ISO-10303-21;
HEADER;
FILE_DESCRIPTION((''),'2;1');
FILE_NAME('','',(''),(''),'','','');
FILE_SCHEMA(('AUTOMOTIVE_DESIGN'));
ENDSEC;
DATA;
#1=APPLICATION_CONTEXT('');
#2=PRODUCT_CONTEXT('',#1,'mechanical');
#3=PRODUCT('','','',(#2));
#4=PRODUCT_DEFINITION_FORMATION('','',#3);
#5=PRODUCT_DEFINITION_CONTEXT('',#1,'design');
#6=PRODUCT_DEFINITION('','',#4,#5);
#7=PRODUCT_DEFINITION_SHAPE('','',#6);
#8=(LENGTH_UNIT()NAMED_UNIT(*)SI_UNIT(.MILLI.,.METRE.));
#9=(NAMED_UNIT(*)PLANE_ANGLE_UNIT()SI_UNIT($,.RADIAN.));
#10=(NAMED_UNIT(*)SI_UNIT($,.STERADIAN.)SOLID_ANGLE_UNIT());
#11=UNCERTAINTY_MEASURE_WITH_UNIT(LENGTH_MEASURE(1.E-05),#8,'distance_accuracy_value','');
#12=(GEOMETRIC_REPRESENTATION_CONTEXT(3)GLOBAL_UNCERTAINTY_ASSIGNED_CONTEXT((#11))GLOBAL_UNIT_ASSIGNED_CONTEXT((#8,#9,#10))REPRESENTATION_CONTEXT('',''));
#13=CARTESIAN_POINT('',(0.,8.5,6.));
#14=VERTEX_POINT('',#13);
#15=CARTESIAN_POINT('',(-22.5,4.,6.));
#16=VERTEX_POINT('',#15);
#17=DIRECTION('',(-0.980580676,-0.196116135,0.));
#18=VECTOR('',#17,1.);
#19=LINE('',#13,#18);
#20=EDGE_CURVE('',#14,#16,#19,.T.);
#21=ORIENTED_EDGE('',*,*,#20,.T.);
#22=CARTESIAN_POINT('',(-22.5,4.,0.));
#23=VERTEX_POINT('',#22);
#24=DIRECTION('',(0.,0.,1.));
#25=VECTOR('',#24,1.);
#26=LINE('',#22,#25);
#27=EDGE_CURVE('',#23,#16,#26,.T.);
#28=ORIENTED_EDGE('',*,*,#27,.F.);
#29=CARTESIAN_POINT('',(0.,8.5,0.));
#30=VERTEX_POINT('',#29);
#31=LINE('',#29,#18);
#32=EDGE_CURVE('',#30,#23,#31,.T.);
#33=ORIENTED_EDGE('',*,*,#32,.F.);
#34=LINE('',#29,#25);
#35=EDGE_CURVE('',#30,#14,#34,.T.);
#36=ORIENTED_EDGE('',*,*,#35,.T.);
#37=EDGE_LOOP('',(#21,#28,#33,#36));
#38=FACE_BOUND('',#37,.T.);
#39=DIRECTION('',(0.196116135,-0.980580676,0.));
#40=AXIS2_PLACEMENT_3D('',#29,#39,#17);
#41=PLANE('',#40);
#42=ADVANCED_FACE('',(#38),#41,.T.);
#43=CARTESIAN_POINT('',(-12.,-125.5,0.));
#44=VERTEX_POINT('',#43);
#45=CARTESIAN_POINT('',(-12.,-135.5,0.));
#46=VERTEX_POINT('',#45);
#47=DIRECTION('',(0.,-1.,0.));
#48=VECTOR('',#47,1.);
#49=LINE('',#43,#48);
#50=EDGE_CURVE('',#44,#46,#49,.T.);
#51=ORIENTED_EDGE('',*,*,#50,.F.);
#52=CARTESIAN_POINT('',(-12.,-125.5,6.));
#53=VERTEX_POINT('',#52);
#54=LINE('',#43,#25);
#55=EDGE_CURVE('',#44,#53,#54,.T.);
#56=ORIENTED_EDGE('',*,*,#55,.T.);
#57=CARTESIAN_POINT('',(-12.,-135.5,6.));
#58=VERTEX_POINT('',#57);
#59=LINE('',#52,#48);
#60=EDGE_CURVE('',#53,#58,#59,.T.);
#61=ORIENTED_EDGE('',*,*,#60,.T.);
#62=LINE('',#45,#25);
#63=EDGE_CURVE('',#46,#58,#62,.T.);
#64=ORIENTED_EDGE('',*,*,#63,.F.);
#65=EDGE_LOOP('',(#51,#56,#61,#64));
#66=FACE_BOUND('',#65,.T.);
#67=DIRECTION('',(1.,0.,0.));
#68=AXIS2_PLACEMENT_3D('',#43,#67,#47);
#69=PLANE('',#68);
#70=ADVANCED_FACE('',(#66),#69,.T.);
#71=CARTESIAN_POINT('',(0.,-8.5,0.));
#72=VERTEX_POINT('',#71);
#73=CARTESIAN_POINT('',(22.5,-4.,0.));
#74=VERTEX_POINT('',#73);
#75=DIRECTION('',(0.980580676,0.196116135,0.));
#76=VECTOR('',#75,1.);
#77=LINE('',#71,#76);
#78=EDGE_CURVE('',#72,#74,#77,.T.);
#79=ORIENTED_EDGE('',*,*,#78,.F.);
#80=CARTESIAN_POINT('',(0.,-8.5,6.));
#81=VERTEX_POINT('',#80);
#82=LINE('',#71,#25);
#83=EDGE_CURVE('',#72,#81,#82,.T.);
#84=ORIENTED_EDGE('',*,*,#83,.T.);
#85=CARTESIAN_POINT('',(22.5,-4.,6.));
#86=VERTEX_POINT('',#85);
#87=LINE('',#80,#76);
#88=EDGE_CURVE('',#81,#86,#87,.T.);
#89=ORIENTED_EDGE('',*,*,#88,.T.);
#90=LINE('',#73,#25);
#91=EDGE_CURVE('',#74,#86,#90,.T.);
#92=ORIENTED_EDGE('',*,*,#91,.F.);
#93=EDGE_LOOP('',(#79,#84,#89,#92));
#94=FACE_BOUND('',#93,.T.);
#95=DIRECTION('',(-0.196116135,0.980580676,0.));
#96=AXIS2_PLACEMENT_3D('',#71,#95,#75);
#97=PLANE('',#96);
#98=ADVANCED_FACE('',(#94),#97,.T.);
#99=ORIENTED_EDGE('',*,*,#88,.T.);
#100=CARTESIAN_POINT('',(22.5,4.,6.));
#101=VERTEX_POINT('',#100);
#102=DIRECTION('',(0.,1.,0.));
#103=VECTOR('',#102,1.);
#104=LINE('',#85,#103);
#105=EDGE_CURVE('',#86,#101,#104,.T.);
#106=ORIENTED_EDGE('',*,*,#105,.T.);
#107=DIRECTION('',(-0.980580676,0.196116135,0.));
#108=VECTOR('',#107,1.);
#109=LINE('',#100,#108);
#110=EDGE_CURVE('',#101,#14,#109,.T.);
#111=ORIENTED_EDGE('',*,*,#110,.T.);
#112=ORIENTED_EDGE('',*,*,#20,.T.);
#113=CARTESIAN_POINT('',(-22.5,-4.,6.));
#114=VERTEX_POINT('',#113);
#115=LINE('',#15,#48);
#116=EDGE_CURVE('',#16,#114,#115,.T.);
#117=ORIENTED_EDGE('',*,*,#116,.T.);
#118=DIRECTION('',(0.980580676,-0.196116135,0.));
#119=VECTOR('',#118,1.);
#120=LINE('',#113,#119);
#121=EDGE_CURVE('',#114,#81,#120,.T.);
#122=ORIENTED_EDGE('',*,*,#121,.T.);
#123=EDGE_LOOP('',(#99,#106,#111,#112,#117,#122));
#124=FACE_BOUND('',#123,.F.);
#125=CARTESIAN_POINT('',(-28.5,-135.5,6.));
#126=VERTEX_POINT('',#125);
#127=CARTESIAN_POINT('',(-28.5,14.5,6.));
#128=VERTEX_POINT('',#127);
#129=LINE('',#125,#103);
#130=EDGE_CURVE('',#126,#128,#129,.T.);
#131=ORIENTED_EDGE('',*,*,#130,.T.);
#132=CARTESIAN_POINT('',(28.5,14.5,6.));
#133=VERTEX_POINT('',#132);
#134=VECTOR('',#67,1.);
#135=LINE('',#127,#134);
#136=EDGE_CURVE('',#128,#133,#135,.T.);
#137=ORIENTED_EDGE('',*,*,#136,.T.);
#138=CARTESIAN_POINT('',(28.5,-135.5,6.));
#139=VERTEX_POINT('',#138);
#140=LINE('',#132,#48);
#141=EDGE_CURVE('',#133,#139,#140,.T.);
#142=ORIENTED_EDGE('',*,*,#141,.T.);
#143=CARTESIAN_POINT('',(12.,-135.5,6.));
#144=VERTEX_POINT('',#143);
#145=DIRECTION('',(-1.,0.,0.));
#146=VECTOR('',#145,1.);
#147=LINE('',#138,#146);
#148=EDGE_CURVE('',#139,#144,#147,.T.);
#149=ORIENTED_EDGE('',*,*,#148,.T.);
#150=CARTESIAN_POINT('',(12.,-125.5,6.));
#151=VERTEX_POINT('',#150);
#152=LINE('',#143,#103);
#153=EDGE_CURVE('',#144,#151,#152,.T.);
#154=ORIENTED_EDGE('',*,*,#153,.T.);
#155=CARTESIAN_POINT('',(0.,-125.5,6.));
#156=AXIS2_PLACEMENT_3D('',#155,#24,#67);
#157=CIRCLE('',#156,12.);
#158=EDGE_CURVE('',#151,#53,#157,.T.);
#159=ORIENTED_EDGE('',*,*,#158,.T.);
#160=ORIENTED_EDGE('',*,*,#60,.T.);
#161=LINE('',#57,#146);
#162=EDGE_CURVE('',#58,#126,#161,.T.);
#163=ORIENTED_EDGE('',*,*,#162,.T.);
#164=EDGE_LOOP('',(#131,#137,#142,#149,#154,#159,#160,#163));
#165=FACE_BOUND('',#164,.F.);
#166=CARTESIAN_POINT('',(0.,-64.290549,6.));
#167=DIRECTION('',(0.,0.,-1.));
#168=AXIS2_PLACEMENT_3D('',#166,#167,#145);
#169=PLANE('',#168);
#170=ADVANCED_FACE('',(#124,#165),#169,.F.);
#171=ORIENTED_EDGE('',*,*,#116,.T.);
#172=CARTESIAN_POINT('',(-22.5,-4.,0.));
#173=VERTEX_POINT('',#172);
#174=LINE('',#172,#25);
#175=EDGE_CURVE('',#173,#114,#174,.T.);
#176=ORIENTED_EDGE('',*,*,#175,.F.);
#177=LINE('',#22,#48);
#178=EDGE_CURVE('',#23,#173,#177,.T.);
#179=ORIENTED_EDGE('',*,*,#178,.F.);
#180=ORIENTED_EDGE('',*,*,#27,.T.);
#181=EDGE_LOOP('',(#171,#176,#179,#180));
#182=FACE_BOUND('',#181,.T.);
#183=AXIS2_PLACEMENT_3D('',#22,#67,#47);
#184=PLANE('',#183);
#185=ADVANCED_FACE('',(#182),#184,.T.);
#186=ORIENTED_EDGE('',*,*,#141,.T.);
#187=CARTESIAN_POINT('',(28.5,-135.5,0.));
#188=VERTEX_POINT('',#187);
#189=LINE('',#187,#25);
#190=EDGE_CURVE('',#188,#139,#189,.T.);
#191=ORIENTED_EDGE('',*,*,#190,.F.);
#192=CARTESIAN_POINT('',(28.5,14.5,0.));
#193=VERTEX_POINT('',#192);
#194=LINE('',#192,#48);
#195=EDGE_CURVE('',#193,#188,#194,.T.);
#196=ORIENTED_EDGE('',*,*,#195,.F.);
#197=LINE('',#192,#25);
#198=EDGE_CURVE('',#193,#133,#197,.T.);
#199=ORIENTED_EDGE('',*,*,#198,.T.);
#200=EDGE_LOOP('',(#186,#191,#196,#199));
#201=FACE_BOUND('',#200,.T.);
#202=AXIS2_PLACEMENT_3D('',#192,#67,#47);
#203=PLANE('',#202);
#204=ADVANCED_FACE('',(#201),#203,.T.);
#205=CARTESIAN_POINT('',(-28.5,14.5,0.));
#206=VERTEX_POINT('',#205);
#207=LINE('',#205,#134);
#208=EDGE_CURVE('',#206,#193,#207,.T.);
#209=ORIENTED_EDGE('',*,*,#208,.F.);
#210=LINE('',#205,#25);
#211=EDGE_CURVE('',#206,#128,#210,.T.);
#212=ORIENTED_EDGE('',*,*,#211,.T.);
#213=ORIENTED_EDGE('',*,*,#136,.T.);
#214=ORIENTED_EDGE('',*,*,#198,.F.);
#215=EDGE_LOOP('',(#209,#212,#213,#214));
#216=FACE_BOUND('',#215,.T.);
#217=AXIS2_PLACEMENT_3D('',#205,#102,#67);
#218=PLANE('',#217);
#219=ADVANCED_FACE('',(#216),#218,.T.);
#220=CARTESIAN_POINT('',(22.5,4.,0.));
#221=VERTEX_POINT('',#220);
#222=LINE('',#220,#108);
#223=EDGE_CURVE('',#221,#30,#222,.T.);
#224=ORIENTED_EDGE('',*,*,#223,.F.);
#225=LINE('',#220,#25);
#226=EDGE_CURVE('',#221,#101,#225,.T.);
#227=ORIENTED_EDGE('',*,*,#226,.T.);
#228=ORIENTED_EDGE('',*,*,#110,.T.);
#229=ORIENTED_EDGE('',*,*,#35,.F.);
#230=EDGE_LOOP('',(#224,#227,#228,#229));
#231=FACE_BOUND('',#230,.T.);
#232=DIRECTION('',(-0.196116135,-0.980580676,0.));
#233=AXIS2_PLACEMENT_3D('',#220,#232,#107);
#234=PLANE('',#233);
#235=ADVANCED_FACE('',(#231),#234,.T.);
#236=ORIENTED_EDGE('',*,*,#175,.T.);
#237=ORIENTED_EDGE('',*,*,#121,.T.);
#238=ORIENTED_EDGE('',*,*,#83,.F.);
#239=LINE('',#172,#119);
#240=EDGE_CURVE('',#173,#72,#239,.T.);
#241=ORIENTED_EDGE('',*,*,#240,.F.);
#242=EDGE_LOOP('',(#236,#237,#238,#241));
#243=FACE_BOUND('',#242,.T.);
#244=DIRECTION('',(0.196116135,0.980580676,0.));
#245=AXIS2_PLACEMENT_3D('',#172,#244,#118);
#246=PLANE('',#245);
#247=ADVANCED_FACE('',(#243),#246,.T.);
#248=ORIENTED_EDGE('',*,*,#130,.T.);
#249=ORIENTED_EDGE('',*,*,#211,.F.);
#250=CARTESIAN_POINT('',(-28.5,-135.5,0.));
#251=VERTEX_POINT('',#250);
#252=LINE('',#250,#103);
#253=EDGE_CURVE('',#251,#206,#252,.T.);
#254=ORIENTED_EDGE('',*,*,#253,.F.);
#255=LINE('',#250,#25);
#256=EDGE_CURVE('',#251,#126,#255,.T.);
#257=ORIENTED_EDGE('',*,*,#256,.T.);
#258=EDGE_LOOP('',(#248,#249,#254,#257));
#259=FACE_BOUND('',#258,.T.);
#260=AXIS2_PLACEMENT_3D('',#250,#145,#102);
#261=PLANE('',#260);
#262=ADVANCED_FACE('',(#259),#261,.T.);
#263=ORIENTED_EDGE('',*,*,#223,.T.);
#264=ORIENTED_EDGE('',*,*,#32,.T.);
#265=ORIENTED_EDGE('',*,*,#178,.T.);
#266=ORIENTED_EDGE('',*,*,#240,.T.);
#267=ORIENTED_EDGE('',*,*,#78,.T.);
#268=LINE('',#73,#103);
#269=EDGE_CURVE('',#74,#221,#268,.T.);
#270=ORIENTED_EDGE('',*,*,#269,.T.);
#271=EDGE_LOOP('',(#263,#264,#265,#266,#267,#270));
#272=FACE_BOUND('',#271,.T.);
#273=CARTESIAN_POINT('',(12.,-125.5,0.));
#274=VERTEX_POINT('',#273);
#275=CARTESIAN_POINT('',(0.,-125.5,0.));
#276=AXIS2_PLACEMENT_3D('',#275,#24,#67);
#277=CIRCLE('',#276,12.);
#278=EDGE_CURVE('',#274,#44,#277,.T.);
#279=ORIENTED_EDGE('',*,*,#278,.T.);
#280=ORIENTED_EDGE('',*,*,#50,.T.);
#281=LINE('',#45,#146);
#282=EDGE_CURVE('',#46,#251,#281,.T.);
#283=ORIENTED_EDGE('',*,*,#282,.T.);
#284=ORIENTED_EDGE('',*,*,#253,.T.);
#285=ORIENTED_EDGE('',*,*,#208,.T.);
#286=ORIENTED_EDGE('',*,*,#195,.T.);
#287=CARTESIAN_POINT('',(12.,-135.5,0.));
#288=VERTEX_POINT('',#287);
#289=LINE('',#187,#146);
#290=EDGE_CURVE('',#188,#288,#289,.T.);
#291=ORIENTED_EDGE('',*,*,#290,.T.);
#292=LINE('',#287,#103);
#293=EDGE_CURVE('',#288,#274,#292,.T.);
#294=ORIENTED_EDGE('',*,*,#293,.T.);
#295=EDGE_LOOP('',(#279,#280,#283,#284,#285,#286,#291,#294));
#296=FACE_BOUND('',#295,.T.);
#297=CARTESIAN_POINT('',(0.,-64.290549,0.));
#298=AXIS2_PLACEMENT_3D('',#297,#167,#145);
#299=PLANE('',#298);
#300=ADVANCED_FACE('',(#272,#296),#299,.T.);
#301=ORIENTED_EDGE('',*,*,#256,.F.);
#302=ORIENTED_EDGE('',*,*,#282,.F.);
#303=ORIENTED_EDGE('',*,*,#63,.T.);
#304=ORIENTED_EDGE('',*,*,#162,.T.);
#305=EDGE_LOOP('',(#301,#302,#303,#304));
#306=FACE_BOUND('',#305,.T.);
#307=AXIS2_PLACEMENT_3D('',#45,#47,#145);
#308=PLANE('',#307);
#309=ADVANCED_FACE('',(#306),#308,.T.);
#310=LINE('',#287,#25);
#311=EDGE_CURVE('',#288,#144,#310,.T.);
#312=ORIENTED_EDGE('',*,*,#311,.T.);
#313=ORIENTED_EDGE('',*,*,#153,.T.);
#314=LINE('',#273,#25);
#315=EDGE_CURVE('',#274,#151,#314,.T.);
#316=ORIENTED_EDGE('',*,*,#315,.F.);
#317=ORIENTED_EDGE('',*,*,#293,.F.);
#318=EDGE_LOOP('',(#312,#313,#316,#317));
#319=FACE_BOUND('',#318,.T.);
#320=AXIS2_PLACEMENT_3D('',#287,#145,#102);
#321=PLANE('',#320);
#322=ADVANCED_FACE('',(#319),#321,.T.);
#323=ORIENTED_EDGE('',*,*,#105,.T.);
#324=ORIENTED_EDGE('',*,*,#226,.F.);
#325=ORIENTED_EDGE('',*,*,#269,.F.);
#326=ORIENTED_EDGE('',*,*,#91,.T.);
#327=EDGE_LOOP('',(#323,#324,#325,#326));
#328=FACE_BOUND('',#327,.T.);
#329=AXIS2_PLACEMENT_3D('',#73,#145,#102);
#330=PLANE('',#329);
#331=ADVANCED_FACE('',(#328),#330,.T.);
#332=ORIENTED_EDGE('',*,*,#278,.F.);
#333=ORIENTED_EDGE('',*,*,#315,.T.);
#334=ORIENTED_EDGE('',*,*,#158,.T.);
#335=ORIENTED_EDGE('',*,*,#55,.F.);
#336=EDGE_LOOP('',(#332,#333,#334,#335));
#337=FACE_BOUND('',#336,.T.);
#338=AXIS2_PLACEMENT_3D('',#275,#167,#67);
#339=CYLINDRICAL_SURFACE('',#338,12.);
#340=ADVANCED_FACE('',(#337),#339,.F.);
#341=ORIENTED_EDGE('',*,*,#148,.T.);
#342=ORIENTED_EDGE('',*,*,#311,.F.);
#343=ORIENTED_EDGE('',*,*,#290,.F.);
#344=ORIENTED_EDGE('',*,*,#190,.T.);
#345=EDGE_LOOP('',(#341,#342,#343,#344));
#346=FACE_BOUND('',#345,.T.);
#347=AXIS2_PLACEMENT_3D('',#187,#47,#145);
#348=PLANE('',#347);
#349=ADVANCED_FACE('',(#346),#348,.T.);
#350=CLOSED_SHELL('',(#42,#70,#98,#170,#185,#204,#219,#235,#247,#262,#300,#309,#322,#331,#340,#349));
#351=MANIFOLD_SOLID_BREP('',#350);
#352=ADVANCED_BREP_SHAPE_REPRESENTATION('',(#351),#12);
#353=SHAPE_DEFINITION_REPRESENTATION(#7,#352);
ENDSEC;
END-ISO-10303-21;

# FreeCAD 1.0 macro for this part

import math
import FreeCAD as App
import Part
import Sketcher
from FreeCAD import Vector
Q = App.Units.Quantity

doc = App.newDocument("Part")
body = doc.addObject("PartDesign::Body", "Body")

# Sketch on XY plane
sketch1 = body.newObject("Sketcher::SketchObject", "Sketch")
sketch1.AttachmentSupport = (doc.getObject("XY_Plane"), [""])
sketch1.MapMode = "FlatFace"
sketch1.addGeometry([
    Part.ArcOfCircle(Part.Circle(Vector(0, -126, 0), Vector(0, 0, 1), 12), math.radians(0), math.radians(180)),  # 0
    Part.LineSegment(Vector(12, -126, 0), Vector(12, -136, 0)),  # 1
    Part.LineSegment(Vector(12, -136, 0), Vector(28, -136, 0)),  # 2
    Part.LineSegment(Vector(28, -136, 0), Vector(28, 14, 0)),  # 3
    Part.LineSegment(Vector(28, 14, 0), Vector(-28, 14, 0)),  # 4
    Part.LineSegment(Vector(-28, 14, 0), Vector(-28, -136, 0)),  # 5
    Part.LineSegment(Vector(-28, -136, 0), Vector(-12, -136, 0)),  # 6
    Part.LineSegment(Vector(-12, -136, 0), Vector(-12, -126, 0)),  # 7
    Part.LineSegment(Vector(0, 8, 0), Vector(22, 4, 0)),  # 8
    Part.LineSegment(Vector(22, 4, 0), Vector(22, -4, 0)),  # 9
    Part.LineSegment(Vector(22, -4, 0), Vector(0, -8, 0)),  # 10
    Part.LineSegment(Vector(0, -8, 0), Vector(-22, -4, 0)),  # 11
    Part.LineSegment(Vector(-22, -4, 0), Vector(-22, 4, 0)),  # 12
    Part.LineSegment(Vector(-22, 4, 0), Vector(0, 8, 0)),  # 13
], False)
sketch1.addConstraint([
    Sketcher.Constraint("Tangent", 0, 1, 1, 1),
    Sketcher.Constraint("Coincident", 1, 2, 2, 1),
    Sketcher.Constraint("Coincident", 2, 2, 3, 1),
    Sketcher.Constraint("Coincident", 3, 2, 4, 1),
    Sketcher.Constraint("Coincident", 4, 2, 5, 1),
    Sketcher.Constraint("Coincident", 5, 2, 6, 1),
    Sketcher.Constraint("Coincident", 6, 2, 7, 1),
    Sketcher.Constraint("Tangent", 7, 2, 0, 2),
    Sketcher.Constraint("Coincident", 8, 2, 9, 1),
    Sketcher.Constraint("Coincident", 9, 2, 10, 1),
    Sketcher.Constraint("Coincident", 10, 2, 11, 1),
    Sketcher.Constraint("Coincident", 11, 2, 12, 1),
    Sketcher.Constraint("Coincident", 12, 2, 13, 1),
    Sketcher.Constraint("Coincident", 13, 2, 8, 1),
    Sketcher.Constraint("Vertical", 1),
    Sketcher.Constraint("Horizontal", 2),
    Sketcher.Constraint("Vertical", 3),
    Sketcher.Constraint("Horizontal", 4),
    Sketcher.Constraint("Vertical", 5),
    Sketcher.Constraint("Horizontal", 6),
    Sketcher.Constraint("Vertical", 7),
    Sketcher.Constraint("Vertical", 9),
    Sketcher.Constraint("Vertical", 12),
    Sketcher.Constraint("Symmetric", 8, 2, 11, 2, -1, 1),
    Sketcher.Constraint("Symmetric", 10, 2, 13, 2, -1, 1),
    Sketcher.Constraint("Symmetric", 2, 2, 5, 2, -2),
    Sketcher.Constraint("PointOnObject", 0, 3, -2),
    Sketcher.Constraint("PointOnObject", 10, 2, -2),
    Sketcher.Constraint("Parallel", 10, 13),
    Sketcher.Constraint("Horizontal", 9, 2, 11, 2),
    Sketcher.Constraint("Radius", 0, Q("12 mm")),
    Sketcher.Constraint("DistanceX", 4, 2, 4, 1, Q("57 mm")),
    Sketcher.Constraint("DistanceY", 1, 2, 1, 1, Q("10 mm")),
    Sketcher.Constraint("DistanceY", 3, 1, 3, 2, Q("150 mm")),
    Sketcher.Constraint("DistanceY", 9, 2, 9, 1, Q("8 mm")),
    Sketcher.Constraint("DistanceX", 8, 2, 3, 2, Q("6 mm")),
    Sketcher.Constraint("DistanceY", 10, 2, 3, 2, Q("23 mm")),
    Sketcher.Constraint("DistanceY", 10, 2, 13, 2, Q("17 mm")),
])
pad1 = body.newObject("PartDesign::Pad", "Pad")
pad1.Profile = sketch1
pad1.Length = 6

doc.recompute()
